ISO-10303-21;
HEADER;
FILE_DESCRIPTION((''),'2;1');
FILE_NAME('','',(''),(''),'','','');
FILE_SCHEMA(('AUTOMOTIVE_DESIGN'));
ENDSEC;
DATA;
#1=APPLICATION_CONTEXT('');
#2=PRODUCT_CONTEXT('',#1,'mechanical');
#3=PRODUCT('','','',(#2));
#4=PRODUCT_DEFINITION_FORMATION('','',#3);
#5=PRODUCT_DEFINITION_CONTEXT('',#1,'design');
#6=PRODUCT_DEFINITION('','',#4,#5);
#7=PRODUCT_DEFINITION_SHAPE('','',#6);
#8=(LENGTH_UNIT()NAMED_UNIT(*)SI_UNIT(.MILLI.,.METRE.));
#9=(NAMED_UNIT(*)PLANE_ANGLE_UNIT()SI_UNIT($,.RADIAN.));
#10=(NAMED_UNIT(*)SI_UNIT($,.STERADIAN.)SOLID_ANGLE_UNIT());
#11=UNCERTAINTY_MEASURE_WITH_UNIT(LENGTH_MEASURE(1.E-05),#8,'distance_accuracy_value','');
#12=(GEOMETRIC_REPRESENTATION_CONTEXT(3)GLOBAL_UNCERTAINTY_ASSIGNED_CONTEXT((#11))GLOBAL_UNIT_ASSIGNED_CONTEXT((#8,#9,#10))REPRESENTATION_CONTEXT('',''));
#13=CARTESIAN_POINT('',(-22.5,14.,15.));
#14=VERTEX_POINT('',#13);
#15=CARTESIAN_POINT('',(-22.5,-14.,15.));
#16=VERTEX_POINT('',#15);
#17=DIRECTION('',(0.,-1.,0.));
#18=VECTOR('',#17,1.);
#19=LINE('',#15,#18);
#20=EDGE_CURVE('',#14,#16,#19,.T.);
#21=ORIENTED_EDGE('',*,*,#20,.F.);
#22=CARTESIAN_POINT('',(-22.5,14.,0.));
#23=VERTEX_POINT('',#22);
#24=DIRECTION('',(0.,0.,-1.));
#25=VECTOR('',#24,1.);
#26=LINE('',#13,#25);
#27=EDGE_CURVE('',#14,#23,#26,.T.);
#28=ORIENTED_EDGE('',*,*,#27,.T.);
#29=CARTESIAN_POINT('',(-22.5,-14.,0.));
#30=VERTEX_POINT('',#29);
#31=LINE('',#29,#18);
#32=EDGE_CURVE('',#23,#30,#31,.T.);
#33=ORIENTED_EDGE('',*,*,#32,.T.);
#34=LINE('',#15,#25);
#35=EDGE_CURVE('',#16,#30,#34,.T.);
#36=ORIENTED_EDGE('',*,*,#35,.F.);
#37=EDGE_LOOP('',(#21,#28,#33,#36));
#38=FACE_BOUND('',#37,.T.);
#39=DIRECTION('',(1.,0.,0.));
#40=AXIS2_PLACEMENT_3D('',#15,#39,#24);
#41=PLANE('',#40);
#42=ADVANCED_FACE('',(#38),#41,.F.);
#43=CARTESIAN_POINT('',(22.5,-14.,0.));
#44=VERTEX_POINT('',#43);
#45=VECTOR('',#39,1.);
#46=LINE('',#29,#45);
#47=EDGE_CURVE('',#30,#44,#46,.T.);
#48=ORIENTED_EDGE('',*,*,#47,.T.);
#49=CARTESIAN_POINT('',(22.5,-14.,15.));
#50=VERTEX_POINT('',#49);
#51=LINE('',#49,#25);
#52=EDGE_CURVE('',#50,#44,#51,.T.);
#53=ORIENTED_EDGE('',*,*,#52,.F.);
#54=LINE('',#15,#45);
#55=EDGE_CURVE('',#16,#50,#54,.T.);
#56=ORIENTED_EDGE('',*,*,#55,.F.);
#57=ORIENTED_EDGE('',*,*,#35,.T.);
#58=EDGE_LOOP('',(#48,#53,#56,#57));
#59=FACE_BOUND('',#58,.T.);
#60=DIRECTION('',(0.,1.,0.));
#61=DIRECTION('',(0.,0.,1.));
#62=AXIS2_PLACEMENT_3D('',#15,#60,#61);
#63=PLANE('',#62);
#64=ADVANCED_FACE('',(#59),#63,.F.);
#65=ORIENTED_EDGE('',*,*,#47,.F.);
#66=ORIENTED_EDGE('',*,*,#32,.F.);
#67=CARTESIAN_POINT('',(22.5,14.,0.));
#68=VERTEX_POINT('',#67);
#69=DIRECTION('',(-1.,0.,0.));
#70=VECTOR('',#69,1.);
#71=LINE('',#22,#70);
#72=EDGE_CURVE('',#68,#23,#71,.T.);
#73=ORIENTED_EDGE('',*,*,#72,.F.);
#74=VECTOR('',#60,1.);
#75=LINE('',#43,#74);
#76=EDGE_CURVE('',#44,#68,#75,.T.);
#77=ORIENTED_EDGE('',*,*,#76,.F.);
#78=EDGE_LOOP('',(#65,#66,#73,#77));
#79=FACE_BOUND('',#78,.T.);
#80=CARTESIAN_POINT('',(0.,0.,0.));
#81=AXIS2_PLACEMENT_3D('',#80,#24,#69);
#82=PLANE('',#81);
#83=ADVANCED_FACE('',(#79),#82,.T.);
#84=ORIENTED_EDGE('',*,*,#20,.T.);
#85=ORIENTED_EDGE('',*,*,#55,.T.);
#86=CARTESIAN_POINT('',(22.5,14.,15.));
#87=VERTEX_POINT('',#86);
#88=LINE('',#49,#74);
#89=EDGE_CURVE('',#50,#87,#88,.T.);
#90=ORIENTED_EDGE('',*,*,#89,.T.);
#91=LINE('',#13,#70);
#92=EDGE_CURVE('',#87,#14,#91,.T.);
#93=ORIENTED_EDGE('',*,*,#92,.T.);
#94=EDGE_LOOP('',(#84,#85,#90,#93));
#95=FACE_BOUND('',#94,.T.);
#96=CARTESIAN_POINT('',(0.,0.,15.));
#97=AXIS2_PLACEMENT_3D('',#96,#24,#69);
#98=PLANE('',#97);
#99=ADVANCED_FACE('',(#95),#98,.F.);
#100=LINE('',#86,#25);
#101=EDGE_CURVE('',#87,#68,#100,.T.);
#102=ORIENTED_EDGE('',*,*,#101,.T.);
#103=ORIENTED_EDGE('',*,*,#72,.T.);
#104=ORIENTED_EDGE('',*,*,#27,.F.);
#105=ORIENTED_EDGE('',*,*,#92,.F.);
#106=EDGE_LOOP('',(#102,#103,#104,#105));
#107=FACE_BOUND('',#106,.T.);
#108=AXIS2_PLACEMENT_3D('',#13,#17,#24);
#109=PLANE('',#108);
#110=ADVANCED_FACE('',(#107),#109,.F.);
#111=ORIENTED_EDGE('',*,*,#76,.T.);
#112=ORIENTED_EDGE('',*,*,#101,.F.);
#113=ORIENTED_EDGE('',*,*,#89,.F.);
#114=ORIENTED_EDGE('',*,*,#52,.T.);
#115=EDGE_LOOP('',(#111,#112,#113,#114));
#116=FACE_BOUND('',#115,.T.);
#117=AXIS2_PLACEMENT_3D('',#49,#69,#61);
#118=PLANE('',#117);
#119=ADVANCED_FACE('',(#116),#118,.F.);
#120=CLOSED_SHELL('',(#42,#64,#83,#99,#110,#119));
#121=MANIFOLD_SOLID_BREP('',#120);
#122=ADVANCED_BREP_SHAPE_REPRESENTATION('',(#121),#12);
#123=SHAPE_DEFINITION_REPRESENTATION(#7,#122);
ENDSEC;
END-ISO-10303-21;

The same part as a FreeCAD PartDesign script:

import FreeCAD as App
import Part
import Sketcher
from FreeCAD import Vector

doc = App.newDocument("Part")
params = doc.addObject("Spreadsheet::Sheet", "Params")
for row, (alias, value) in enumerate([
    ("sketch1_width", "45 mm"),
    ("sketch1_height", "28 mm"),
    ("pad1_length", "15 mm"),
], start=1):
    params.set(f"A{row}", alias)
    params.set(f"B{row}", "=" + value)
    params.setAlias(f"B{row}", alias)

body = doc.addObject("PartDesign::Body", "Body")

sketch1 = body.newObject("Sketcher::SketchObject", "Sketch")
sketch1.AttachmentSupport = (doc.getObject("XY_Plane"), [""])
sketch1.MapMode = "FlatFace"
sketch1.addGeometry([
    Part.LineSegment(Vector(-22, 14, 0), Vector(-22, -14, 0)),
    Part.LineSegment(Vector(-22, -14, 0), Vector(22, -14, 0)),
    Part.LineSegment(Vector(22, -14, 0), Vector(22, 14, 0)),
    Part.LineSegment(Vector(22, 14, 0), Vector(-22, 14, 0)),
], False)
sketch1.addConstraint([
    Sketcher.Constraint("Coincident", 0, 2, 1, 1),
    Sketcher.Constraint("Coincident", 1, 2, 2, 1),
    Sketcher.Constraint("Coincident", 2, 2, 3, 1),
    Sketcher.Constraint("Coincident", 3, 2, 0, 1),
    Sketcher.Constraint("Vertical", 0),
    Sketcher.Constraint("Horizontal", 1),
    Sketcher.Constraint("Vertical", 2),
    Sketcher.Constraint("Horizontal", 3),
    Sketcher.Constraint("Symmetric", 0, 2, 2, 2, -1, 1),
    Sketcher.Constraint("DistanceX", 1, 1, 1, 2, 45.0),
    Sketcher.Constraint("DistanceY", 0, 2, 0, 1, 28.0),
])
sketch1.setExpression("Constraints[9]", "Params.sketch1_width")
sketch1.setExpression("Constraints[10]", "Params.sketch1_height")
pad1 = body.newObject("PartDesign::Pad", "Pad")
pad1.Profile = sketch1
pad1.setExpression("Length", "Params.pad1_length")

doc.recompute()
